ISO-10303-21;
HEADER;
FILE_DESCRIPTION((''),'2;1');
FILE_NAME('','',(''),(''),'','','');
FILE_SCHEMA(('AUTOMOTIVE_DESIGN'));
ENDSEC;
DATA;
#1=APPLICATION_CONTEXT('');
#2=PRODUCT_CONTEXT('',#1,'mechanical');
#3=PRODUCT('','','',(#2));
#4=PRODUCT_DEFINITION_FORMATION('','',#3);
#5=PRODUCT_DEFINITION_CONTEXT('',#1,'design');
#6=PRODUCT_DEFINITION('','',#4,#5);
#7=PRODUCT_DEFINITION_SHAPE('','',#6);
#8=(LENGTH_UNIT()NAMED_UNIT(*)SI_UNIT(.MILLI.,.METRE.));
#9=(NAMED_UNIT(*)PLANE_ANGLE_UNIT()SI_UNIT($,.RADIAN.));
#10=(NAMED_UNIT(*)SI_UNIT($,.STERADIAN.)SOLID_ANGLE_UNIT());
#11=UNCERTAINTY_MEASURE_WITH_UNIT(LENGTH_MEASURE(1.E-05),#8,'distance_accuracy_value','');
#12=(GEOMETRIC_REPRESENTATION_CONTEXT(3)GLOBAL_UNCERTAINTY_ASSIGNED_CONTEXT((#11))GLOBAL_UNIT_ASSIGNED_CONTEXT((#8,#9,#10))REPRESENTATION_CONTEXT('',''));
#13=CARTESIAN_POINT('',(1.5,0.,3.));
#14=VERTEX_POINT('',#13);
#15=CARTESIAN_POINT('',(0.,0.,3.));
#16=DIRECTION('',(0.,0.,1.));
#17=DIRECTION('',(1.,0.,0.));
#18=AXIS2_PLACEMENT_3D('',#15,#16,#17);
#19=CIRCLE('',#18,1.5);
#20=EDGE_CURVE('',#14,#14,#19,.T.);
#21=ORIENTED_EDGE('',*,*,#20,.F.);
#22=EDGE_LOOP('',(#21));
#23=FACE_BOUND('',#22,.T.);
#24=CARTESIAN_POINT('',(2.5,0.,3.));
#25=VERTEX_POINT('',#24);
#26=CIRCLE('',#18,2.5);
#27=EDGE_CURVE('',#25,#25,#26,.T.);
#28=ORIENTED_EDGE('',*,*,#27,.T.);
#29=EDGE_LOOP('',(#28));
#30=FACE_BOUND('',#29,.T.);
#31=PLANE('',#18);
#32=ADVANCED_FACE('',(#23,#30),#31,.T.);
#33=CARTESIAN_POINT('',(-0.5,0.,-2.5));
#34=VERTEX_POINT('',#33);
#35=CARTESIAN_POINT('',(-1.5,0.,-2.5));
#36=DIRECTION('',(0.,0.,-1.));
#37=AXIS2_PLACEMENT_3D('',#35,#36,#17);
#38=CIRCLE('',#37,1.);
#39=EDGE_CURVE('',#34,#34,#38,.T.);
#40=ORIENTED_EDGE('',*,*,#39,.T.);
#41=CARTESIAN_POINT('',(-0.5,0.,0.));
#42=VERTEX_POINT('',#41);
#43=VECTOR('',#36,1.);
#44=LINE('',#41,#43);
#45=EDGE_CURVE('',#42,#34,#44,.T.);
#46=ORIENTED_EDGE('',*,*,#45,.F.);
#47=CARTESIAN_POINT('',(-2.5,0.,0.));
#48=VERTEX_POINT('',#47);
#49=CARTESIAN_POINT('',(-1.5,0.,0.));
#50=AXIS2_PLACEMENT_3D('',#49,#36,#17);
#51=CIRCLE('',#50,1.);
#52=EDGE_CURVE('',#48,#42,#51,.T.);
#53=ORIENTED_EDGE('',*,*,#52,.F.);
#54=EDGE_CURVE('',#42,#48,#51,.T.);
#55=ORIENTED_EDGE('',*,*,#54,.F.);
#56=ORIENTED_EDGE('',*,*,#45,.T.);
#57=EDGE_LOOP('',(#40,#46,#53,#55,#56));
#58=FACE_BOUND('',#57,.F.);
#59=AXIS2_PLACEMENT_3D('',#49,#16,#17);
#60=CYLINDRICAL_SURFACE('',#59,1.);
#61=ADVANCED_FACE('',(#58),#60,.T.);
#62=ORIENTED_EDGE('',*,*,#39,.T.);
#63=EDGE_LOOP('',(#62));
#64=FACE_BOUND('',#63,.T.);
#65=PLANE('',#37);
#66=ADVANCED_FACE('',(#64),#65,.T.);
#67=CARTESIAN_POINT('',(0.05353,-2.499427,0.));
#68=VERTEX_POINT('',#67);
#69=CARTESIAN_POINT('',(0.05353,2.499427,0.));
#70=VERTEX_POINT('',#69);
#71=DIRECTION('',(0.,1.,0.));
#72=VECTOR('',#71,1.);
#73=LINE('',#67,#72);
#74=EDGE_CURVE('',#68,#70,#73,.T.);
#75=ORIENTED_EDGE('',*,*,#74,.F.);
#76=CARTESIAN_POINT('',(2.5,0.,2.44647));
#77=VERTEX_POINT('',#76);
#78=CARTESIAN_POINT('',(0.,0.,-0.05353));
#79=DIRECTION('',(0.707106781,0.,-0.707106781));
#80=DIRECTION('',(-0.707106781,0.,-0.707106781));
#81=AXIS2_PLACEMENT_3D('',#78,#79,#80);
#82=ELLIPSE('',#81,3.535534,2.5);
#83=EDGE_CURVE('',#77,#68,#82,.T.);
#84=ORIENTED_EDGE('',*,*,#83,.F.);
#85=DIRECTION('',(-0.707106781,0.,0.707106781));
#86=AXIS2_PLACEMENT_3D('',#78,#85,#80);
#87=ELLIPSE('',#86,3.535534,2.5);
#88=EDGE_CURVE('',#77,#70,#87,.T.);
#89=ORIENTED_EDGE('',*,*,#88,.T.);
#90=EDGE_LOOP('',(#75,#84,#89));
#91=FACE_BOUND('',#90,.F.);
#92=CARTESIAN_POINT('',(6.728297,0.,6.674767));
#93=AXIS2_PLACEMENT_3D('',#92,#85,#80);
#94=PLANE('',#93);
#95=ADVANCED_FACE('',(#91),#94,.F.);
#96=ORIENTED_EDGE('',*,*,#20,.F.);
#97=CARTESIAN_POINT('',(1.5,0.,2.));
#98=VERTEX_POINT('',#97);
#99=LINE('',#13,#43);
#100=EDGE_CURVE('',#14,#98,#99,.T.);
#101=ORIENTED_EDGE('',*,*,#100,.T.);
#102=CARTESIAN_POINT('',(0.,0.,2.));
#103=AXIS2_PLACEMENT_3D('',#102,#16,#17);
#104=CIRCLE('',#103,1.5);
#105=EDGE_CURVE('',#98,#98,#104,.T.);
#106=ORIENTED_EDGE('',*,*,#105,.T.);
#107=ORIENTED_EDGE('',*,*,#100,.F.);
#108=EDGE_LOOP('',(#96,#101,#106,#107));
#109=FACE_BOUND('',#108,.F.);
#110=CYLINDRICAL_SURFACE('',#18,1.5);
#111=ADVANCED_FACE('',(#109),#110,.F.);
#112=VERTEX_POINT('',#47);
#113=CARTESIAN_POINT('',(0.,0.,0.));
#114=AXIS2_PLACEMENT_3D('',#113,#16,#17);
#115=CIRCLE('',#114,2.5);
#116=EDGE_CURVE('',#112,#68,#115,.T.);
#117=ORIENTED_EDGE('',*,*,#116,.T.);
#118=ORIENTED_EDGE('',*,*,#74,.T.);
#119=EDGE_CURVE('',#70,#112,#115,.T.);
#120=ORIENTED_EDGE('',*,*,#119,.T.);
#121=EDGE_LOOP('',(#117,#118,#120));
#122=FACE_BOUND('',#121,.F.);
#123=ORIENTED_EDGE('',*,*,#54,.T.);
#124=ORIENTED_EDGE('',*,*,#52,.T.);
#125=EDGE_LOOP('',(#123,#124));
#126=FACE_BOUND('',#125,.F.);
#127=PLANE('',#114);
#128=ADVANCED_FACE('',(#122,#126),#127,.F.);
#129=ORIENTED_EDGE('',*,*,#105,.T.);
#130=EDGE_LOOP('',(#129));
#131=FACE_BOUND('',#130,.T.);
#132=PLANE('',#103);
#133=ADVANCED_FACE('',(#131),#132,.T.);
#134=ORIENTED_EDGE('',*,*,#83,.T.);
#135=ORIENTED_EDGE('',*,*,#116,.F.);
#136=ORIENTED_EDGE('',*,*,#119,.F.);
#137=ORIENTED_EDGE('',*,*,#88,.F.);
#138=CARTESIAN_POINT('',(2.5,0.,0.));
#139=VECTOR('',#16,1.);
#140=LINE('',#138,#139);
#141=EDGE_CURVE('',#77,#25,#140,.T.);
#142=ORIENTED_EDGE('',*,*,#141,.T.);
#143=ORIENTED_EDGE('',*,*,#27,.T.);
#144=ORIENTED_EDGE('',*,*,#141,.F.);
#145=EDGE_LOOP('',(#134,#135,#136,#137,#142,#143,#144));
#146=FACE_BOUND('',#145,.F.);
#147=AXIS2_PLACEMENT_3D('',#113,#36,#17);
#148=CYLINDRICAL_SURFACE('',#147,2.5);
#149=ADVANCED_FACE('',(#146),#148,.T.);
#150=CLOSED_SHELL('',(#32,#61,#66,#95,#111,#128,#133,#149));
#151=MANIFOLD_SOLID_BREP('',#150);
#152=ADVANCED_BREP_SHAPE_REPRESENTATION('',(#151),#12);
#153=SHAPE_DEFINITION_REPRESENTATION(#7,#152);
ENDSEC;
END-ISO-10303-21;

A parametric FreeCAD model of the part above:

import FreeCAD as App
import Part
import Sketcher

V = App.Vector
Q = App.Units.Quantity

doc = App.newDocument("Part")
body = doc.addObject("PartDesign::Body", "Body")

sketch1 = body.newObject("Sketcher::SketchObject", "Sketch")
sketch1.AttachmentSupport = (doc.getObject("XY_Plane"), [""])
sketch1.MapMode = "FlatFace"
sketch1.addGeometry(Part.Circle(V(0, 0, 0), V(0, 0, 1), 2.5), False)
sketch1.addConstraint(Sketcher.Constraint("Coincident", 0, 3, -1, 1))
sketch1.addConstraint(Sketcher.Constraint("Diameter", 0, Q("5 mm")))
pad1 = body.newObject("PartDesign::Pad", "Pad")
pad1.Profile = sketch1
pad1.Length = 3

sketch2 = body.newObject("Sketcher::SketchObject", "Sketch001")
sketch2.AttachmentSupport = (doc.getObject("XZ_Plane"), [""])
sketch2.MapMode = "FlatFace"
sketch2.addGeometry(Part.LineSegment(V(7, 7, 0), V(-5, -5, 0)), False)
sketch2.addGeometry(Part.LineSegment(V(-5, -5, 0), V(7, -5, 0)), False)
sketch2.addGeometry(Part.LineSegment(V(7, -5, 0), V(7, 7, 0)), False)
sketch2.addConstraint(Sketcher.Constraint("Coincident", 0, 2, 1, 1))
sketch2.addConstraint(Sketcher.Constraint("Coincident", 1, 2, 2, 1))
sketch2.addConstraint(Sketcher.Constraint("Coincident", 2, 2, 0, 1))
sketch2.addConstraint(Sketcher.Constraint("Horizontal", 1))
sketch2.addConstraint(Sketcher.Constraint("Vertical", 2))
sketch2.addConstraint(Sketcher.Constraint("Equal", 1, 2))
sketch2.addConstraint(Sketcher.Constraint("DistanceX", 1, 1, 1, 2, Q("11.51622 mm")))
sketch2.addConstraint(Sketcher.Constraint("DistanceX", 0, 2, -1, 1, Q("4.787923 mm")))
sketch2.addConstraint(Sketcher.Constraint("DistanceY", 0, 2, -1, 1, Q("4.841453 mm")))
pocket1 = body.newObject("PartDesign::Pocket", "Pocket")
pocket1.Profile = sketch2
pocket1.Type = "ThroughAll"
pocket1.Midplane = True

sketch3 = body.newObject("Sketcher::SketchObject", "Sketch002")
sketch3.AttachmentSupport = (doc.getObject("XY_Plane"), [""])
sketch3.MapMode = "FlatFace"
sketch3.addGeometry(Part.Circle(V(-1.5, 0, 0), V(0, 0, 1), 1), False)
sketch3.addConstraint(Sketcher.Constraint("PointOnObject", 0, 3, -1))
sketch3.addConstraint(Sketcher.Constraint("Diameter", 0, Q("2 mm")))
sketch3.addConstraint(Sketcher.Constraint("DistanceX", 0, 3, -1, 1, Q("1.5 mm")))
pad2 = body.newObject("PartDesign::Pad", "Pad001")
pad2.Profile = sketch3
pad2.Length = 2.5
pad2.Reversed = True

sketch4 = body.newObject("Sketcher::SketchObject", "Sketch003")
sketch4.AttachmentSupport = (doc.getObject("XY_Plane"), [""])
sketch4.MapMode = "FlatFace"
sketch4.AttachmentOffset = App.Placement(V(0, 0, 3), App.Rotation())
sketch4.addGeometry(Part.Circle(V(0, 0, 0), V(0, 0, 1), 1.5), False)
sketch4.addConstraint(Sketcher.Constraint("Coincident", 0, 3, -1, 1))
sketch4.addConstraint(Sketcher.Constraint("Diameter", 0, Q("3 mm")))
pocket2 = body.newObject("PartDesign::Pocket", "Pocket001")
pocket2.Profile = sketch4
pocket2.Length = 1

doc.recompute()
